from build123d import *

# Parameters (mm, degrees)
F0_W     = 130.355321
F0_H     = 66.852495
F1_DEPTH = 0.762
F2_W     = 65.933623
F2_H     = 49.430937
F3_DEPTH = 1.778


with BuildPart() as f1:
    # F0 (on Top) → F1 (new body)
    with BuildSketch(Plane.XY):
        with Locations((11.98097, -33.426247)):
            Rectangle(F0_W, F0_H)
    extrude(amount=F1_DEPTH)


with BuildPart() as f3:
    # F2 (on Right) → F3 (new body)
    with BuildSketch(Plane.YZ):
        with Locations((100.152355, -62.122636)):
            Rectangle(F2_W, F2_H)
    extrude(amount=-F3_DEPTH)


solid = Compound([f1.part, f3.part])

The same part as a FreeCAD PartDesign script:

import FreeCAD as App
import Part
import Sketcher
from FreeCAD import Vector
Q = App.Units.Quantity

doc = App.newDocument("Part")
body = doc.addObject("PartDesign::Body", "Body")

# Sketch on XY plane
sketch1 = doc.addObject("Sketcher::SketchObject", "Sketch")
body.addObject(sketch1)
sketch1.AttachmentSupport = (doc.XY_Plane, [""])
sketch1.MapMode = "FlatFace"
sketch1.addGeometry([
    Part.LineSegment(Vector(-53.196691, 0, 0), Vector(-53.196691, -66.852495, 0)),
    Part.LineSegment(Vector(-53.196691, -66.852495, 0), Vector(77.158631, -66.852495, 0)),
    Part.LineSegment(Vector(77.158631, -66.852495, 0), Vector(77.158631, 0, 0)),
    Part.LineSegment(Vector(77.158631, 0, 0), Vector(-53.196691, 0, 0)),
], False)
sketch1.addConstraint([
    Sketcher.Constraint("Coincident", 0, 2, 1, 1),
    Sketcher.Constraint("Coincident", 1, 2, 2, 1),
    Sketcher.Constraint("Coincident", 2, 2, 3, 1),
    Sketcher.Constraint("Coincident", 3, 2, 0, 1),
    Sketcher.Constraint("Vertical", 0),
    Sketcher.Constraint("Horizontal", 1),
    Sketcher.Constraint("Vertical", 2),
    Sketcher.Constraint("Horizontal", 3),
    Sketcher.Constraint("PointOnObject", 2, 2, -1),
    Sketcher.Constraint("DistanceX", 1, 1, 1, 2, 130.355321),
    Sketcher.Constraint("DistanceY", 0, 2, 0, 1, 66.852495),
    Sketcher.Constraint("DistanceX", 0, 2, -1, 1, 53.196691),
])
pad1 = doc.addObject("PartDesign::Pad", "Pad")
body.addObject(pad1)
pad1.Profile = sketch1
pad1.Length = Q("0.03 in")
body2 = doc.addObject("PartDesign::Body", "Body001")

# Sketch on YZ plane
sketch2 = doc.addObject("Sketcher::SketchObject", "Sketch001")
body2.addObject(sketch2)
sketch2.AttachmentSupport = (doc.getObject("YZ_Plane001"), [""])
sketch2.MapMode = "FlatFace"
sketch2.addGeometry([
    Part.LineSegment(Vector(67.185543, -37.407167, 0), Vector(67.185543, -86.838105, 0)),
    Part.LineSegment(Vector(67.185543, -86.838105, 0), Vector(133.119167, -86.838105, 0)),
    Part.LineSegment(Vector(133.119167, -86.838105, 0), Vector(133.119167, -37.407167, 0)),
    Part.LineSegment(Vector(133.119167, -37.407167, 0), Vector(67.185543, -37.407167, 0)),
], False)
sketch2.addConstraint([
    Sketcher.Constraint("Coincident", 0, 2, 1, 1),
    Sketcher.Constraint("Coincident", 1, 2, 2, 1),
    Sketcher.Constraint("Coincident", 2, 2, 3, 1),
    Sketcher.Constraint("Coincident", 3, 2, 0, 1),
    Sketcher.Constraint("Vertical", 0),
    Sketcher.Constraint("Horizontal", 1),
    Sketcher.Constraint("Vertical", 2),
    Sketcher.Constraint("Horizontal", 3),
    Sketcher.Constraint("DistanceY", 0, 2, 0, 1, Q("1.9460999 in")),
    Sketcher.Constraint("DistanceX", -1, 1, 0, 2, Q("2.6451001 in")),
    Sketcher.Constraint("DistanceX", 1, 1, 1, 2, 65.933623),
    Sketcher.Constraint("DistanceY", 0, 2, -1, 1, 86.838105),
])
pad2 = doc.addObject("PartDesign::Pad", "Pad001")
body2.addObject(pad2)
pad2.Profile = sketch2
pad2.Length = Q("0.07 in")
pad2.Reversed = True

doc.recompute()
